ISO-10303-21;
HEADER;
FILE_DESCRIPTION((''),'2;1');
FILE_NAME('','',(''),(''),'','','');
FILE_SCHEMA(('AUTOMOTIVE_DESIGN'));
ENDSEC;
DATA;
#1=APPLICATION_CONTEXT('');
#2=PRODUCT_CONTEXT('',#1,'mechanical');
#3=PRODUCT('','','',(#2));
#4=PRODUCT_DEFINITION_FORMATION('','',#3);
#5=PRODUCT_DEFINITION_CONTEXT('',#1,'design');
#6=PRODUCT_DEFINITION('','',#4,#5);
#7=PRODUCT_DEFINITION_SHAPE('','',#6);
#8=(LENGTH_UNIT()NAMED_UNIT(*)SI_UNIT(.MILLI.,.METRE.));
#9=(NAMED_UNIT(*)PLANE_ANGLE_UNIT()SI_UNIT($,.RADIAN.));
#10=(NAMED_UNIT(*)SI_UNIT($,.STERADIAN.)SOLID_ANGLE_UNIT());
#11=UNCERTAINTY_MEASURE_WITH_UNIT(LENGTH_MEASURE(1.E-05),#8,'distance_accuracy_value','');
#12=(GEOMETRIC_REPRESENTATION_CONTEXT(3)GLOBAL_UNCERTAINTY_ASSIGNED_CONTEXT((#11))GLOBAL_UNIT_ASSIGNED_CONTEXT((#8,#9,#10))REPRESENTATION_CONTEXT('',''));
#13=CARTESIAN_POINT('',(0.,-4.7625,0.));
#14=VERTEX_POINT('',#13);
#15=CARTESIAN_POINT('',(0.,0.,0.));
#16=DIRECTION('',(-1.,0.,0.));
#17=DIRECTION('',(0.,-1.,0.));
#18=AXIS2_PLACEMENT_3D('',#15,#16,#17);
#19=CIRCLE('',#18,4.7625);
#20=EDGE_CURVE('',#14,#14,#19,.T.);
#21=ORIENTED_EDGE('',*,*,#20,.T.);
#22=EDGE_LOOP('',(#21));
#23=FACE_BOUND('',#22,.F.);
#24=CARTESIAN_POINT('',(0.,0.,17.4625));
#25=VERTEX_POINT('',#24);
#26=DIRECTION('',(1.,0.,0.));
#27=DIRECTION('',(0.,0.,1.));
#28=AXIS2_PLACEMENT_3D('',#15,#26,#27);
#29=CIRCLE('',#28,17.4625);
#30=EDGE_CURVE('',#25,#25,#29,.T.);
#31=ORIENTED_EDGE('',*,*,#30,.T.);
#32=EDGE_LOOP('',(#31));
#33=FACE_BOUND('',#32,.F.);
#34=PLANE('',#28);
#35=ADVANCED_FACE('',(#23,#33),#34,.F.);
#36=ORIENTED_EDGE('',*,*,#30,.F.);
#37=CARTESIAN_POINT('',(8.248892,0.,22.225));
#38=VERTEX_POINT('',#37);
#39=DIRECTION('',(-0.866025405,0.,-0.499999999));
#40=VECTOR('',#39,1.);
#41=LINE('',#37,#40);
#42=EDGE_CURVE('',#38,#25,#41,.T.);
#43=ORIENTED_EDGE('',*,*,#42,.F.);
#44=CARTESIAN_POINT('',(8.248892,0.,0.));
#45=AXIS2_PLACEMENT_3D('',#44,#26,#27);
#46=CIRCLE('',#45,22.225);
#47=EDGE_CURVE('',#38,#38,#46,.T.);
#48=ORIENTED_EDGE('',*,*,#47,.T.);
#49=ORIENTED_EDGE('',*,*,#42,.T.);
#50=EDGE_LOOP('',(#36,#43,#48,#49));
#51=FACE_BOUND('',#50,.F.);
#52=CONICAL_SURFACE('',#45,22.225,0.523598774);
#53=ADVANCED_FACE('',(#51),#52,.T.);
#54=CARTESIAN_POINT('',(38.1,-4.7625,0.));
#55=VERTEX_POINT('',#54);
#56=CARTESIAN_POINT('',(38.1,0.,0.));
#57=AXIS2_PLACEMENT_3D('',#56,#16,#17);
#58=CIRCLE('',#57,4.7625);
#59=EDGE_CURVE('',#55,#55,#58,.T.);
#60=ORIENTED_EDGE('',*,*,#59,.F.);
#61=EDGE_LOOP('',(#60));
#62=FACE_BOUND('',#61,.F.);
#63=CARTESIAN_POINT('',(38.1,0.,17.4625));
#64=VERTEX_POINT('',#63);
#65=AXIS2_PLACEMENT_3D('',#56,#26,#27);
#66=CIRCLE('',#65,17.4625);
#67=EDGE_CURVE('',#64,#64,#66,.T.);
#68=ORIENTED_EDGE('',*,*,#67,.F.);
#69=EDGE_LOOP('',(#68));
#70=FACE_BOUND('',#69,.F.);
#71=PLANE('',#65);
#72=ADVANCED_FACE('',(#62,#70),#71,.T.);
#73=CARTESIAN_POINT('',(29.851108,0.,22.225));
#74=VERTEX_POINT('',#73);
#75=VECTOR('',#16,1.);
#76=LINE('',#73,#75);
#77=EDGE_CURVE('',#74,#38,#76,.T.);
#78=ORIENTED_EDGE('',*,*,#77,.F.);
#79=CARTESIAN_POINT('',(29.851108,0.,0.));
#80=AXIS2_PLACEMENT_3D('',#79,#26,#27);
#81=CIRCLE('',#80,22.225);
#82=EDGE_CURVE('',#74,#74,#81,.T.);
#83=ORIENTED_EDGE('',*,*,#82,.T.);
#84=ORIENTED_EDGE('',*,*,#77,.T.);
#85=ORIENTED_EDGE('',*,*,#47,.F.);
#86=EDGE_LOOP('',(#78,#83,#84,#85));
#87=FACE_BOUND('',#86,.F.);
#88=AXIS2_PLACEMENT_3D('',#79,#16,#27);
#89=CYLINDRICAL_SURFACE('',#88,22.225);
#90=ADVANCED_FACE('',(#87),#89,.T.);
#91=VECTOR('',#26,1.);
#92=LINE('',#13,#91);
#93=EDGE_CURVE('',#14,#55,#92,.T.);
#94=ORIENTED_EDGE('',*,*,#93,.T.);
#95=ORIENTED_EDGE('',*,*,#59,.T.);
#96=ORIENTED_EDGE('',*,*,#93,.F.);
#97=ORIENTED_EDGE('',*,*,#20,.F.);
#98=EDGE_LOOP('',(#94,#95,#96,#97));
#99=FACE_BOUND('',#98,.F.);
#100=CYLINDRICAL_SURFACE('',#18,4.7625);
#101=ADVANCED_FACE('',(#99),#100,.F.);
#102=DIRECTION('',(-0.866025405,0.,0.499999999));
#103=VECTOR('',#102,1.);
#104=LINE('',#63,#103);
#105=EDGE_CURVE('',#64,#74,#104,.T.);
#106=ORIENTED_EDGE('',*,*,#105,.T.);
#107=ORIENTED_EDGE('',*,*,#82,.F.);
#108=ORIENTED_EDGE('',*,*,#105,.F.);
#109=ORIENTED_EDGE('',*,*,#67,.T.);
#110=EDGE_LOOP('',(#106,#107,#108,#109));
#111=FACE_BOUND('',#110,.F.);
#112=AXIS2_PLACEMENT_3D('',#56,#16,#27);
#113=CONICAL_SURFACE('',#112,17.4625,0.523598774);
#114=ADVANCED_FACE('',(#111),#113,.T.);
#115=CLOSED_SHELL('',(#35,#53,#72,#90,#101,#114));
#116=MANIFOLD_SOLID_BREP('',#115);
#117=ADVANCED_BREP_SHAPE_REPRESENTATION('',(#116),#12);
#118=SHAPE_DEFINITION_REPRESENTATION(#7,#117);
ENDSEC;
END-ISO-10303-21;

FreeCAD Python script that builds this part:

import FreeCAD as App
import Part
import Sketcher
from FreeCAD import Vector
Q = App.Units.Quantity

doc = App.newDocument("Part")
body = doc.addObject("PartDesign::Body", "Body")

# Sketch on XZ plane
sketch1 = body.newObject("Sketcher::SketchObject", "Sketch")
sketch1.AttachmentSupport = (doc.getObject("XZ_Plane"), [""])
sketch1.MapMode = "FlatFace"
sketch1.addGeometry(Part.LineSegment(Vector(0, 17.4625, 0), Vector(0, 0, 0)), False)
sketch1.addGeometry(Part.LineSegment(Vector(0, 0, 0), Vector(38.1, 0, 0)), False)
sketch1.addGeometry(Part.LineSegment(Vector(38.1, 0, 0), Vector(38.1, 17.4625, 0)), False)
sketch1.addGeometry(Part.LineSegment(Vector(38.1, 17.4625, 0), Vector(29.851108, 22.225, 0)), False)
sketch1.addGeometry(Part.LineSegment(Vector(29.851108, 22.225, 0), Vector(8.248892, 22.225, 0)), False)
sketch1.addGeometry(Part.LineSegment(Vector(8.248892, 22.225, 0), Vector(0, 17.4625, 0)), False)
sketch1.addConstraint(Sketcher.Constraint("Coincident", 0, 2, 1, 1))
sketch1.addConstraint(Sketcher.Constraint("Coincident", 1, 2, 2, 1))
sketch1.addConstraint(Sketcher.Constraint("Coincident", 2, 2, 3, 1))
sketch1.addConstraint(Sketcher.Constraint("Coincident", 3, 2, 4, 1))
sketch1.addConstraint(Sketcher.Constraint("Coincident", 4, 2, 5, 1))
sketch1.addConstraint(Sketcher.Constraint("Coincident", 5, 2, 0, 1))
sketch1.addConstraint(Sketcher.Constraint("Vertical", 0))
sketch1.addConstraint(Sketcher.Constraint("Horizontal", 1))
sketch1.addConstraint(Sketcher.Constraint("Vertical", 2))
sketch1.addConstraint(Sketcher.Constraint("Horizontal", 4))
sketch1.addConstraint(Sketcher.Constraint("Coincident", 0, 2, -1, 1))
sketch1.addConstraint(Sketcher.Constraint("Horizontal", 2, 2, 5, 2))
sketch1.addConstraint(Sketcher.Constraint("Equal", 3, 5))
sketch1.addConstraint(Sketcher.Constraint("DistanceX", 1, 1, 1, 2, Q("1.5 in")))
sketch1.addConstraint(Sketcher.Constraint("Angle", 3, Q("150 deg")))
sketch1.addConstraint(Sketcher.Constraint("DistanceY", 0, 2, 0, 1, Q("0.6875 in")))
sketch1.addConstraint(Sketcher.Constraint("Distance", 3, Q("0.375 in")))
revolution = body.newObject("PartDesign::Revolution", "Revolution")
revolution.Profile = sketch1
revolution.ReferenceAxis = (sketch1, ["H_Axis"])
revolution.Angle = 360

# Sketch on YZ plane
sketch2 = body.newObject("Sketcher::SketchObject", "Sketch001")
sketch2.AttachmentSupport = (doc.getObject("YZ_Plane"), [""])
sketch2.MapMode = "FlatFace"
sketch2.addGeometry(Part.Circle(Vector(0, 0, 0), Vector(0, 0, 1), 4.7625), False)
sketch2.addGeometry(Part.Circle(Vector(0, -38.1, 0), Vector(0, 0, 1), 4.7625), False)
sketch2.addConstraint(Sketcher.Constraint("Coincident", 0, 3, -1, 1))
sketch2.addConstraint(Sketcher.Constraint("Equal", 0, 1))
sketch2.addConstraint(Sketcher.Constraint("PointOnObject", 1, 3, -2))
sketch2.addConstraint(Sketcher.Constraint("Diameter", 0, Q("0.375 in")))
sketch2.addConstraint(Sketcher.Constraint("DistanceY", 1, 3, -1, 1, Q("1.5 in")))
pocket1 = body.newObject("PartDesign::Pocket", "Pocket")
pocket1.Profile = sketch2
pocket1.Type = "ThroughAll"
pocket1.Reversed = True

doc.recompute()
